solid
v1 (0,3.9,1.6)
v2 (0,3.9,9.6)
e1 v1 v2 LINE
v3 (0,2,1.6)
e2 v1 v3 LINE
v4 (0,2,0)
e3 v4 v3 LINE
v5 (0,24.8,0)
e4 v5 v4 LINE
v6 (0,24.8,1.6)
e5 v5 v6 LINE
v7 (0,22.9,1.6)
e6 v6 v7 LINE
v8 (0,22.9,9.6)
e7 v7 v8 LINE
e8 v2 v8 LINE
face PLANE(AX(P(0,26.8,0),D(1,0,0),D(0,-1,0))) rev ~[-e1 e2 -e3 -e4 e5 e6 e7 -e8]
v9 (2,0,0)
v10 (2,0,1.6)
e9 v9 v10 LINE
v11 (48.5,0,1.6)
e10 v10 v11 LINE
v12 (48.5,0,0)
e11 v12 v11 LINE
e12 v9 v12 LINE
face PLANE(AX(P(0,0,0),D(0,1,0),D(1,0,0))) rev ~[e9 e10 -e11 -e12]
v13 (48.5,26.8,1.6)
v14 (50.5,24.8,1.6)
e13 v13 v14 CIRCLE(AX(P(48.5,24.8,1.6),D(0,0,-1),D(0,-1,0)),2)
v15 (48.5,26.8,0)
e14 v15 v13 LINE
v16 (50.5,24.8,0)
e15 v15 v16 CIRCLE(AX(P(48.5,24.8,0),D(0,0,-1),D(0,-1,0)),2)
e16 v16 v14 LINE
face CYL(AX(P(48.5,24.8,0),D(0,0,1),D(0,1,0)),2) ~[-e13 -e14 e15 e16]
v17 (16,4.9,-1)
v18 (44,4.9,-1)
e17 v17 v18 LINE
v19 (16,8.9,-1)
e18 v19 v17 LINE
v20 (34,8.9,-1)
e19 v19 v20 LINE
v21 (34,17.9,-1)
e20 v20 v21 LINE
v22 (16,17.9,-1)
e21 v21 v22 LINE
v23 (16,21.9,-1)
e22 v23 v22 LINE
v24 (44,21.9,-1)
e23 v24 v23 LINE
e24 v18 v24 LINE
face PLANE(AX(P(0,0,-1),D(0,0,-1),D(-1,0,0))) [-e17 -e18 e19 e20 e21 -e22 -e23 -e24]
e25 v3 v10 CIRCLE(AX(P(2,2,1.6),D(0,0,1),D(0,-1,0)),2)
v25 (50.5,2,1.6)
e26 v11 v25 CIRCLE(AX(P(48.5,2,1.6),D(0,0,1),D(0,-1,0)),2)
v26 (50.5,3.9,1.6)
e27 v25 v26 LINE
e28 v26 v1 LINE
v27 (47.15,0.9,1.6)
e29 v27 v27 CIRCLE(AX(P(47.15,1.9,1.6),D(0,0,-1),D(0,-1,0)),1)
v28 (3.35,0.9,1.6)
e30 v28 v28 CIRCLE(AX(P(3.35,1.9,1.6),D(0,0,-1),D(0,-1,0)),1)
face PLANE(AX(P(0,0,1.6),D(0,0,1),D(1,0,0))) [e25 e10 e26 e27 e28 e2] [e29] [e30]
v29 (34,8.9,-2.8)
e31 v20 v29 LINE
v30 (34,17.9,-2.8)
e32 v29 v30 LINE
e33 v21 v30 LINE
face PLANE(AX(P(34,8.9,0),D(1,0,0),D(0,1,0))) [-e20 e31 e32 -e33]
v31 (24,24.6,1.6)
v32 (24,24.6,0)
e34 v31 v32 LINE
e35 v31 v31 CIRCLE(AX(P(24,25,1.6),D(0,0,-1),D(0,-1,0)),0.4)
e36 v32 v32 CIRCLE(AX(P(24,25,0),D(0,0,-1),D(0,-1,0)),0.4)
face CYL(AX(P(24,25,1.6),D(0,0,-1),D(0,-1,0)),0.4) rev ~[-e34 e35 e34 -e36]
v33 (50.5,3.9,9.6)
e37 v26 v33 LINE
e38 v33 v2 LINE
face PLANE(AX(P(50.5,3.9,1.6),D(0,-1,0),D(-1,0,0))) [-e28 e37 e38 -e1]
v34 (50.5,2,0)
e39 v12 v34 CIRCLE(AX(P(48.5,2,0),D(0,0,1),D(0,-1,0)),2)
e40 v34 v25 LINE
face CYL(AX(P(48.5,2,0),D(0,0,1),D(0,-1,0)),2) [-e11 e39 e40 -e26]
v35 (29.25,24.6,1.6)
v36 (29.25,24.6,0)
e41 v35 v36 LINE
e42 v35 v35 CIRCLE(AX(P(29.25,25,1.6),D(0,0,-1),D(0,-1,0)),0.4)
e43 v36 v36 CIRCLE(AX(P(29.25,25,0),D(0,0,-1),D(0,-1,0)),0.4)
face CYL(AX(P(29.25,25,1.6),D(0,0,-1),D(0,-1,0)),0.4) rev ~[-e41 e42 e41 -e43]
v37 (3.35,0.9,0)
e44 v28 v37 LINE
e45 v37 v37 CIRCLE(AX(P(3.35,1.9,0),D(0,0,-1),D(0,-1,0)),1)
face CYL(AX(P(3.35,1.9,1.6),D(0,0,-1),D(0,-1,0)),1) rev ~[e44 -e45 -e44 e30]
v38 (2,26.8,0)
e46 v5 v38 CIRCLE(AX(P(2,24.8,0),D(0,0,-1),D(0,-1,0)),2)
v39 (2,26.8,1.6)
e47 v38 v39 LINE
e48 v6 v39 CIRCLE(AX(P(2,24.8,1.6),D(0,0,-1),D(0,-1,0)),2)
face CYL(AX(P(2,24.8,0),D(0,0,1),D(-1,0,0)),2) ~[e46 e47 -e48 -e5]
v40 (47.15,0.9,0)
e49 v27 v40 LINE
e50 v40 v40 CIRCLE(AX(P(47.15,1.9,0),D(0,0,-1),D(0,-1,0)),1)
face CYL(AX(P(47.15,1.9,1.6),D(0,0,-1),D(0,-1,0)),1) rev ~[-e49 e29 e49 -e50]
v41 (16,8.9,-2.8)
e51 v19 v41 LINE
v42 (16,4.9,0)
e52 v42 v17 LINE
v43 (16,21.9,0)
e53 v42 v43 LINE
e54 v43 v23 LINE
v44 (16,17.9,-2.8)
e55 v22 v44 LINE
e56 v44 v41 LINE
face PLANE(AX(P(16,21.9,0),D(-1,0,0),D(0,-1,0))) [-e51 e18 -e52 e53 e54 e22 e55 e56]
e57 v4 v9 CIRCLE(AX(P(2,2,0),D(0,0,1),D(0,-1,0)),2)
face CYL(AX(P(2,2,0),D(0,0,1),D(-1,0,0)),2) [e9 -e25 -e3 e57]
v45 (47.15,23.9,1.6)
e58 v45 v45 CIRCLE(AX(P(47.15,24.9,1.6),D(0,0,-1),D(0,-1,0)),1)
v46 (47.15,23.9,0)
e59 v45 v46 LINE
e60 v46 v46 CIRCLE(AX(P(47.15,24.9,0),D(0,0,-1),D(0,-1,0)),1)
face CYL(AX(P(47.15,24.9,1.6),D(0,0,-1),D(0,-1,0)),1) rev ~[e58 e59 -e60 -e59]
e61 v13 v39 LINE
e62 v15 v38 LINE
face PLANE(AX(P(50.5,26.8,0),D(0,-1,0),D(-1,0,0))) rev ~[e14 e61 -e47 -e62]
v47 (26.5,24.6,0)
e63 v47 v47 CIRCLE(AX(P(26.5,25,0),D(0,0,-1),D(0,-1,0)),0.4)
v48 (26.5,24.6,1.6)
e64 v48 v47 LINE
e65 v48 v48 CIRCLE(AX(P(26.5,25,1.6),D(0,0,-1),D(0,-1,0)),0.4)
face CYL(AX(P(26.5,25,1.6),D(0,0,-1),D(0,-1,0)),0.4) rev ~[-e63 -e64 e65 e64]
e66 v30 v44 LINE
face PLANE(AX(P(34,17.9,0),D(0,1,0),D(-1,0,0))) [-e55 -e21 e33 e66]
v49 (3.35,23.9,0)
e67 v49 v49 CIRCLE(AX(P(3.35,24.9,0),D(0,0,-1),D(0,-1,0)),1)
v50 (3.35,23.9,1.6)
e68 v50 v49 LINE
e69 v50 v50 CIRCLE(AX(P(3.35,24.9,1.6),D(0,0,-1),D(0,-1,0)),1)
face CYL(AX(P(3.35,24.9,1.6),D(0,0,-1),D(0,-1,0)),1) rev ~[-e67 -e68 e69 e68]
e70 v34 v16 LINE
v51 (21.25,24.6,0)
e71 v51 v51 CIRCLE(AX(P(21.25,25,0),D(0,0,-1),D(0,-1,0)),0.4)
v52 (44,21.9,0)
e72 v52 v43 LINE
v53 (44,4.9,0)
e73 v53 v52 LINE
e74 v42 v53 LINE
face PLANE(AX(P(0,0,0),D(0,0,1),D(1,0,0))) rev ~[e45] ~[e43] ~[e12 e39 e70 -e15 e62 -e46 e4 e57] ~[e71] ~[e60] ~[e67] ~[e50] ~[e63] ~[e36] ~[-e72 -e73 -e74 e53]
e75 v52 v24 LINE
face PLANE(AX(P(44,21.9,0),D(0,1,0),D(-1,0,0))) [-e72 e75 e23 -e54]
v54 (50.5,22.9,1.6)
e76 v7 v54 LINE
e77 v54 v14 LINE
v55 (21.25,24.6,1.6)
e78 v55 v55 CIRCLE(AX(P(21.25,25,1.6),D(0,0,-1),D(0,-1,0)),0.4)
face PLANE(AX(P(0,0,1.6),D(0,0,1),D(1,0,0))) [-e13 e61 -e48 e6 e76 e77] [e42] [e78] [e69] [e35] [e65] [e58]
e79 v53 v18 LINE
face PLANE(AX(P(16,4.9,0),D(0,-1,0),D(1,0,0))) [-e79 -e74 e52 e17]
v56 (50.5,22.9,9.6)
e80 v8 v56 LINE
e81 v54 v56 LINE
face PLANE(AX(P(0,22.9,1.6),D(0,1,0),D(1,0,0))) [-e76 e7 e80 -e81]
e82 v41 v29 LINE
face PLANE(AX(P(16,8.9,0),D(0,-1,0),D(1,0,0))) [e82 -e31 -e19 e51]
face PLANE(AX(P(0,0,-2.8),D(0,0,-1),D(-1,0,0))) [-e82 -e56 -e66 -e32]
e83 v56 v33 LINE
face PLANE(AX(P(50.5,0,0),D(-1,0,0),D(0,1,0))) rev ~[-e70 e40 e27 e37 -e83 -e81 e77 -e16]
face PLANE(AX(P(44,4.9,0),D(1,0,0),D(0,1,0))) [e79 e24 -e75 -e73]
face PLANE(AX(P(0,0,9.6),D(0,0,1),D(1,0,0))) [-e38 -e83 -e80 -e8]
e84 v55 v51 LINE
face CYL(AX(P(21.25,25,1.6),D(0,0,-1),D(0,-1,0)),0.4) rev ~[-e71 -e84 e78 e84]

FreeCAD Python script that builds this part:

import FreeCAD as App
import Part
import Sketcher
from FreeCAD import Vector
Q = App.Units.Quantity


def edges_at(feature, points):
    """Names of the edges that pass closest to the given points."""
    edges = feature.Shape.Edges
    near = lambda p: min(range(len(edges)), key=lambda i: edges[i].distToShape(Part.Vertex(*p))[0])
    return sorted({f"Edge{near(p) + 1}" for p in points})

doc = App.newDocument("Part")
body = doc.addObject("PartDesign::Body", "Body")

sketch1 = body.newObject("Sketcher::SketchObject", "Sketch")
sketch1.AttachmentSupport = (doc.getObject("XY_Plane"), [""])
sketch1.MapMode = "FlatFace"
sketch1.addGeometry([
    Part.LineSegment(Vector(0, 27, 0), Vector(0, 0, 0)),
    Part.LineSegment(Vector(0, 0, 0), Vector(50, 0, 0)),
    Part.LineSegment(Vector(50, 0, 0), Vector(50, 27, 0)),
    Part.LineSegment(Vector(50, 27, 0), Vector(0, 27, 0)),
], False)
sketch1.addConstraint([
    Sketcher.Constraint("Coincident", 0, 2, 1, 1),
    Sketcher.Constraint("Coincident", 1, 2, 2, 1),
    Sketcher.Constraint("Coincident", 2, 2, 3, 1),
    Sketcher.Constraint("Coincident", 3, 2, 0, 1),
    Sketcher.Constraint("Vertical", 0),
    Sketcher.Constraint("Horizontal", 1),
    Sketcher.Constraint("Vertical", 2),
    Sketcher.Constraint("Horizontal", 3),
    Sketcher.Constraint("Coincident", 0, 2, -1, 1),
    Sketcher.Constraint("DistanceX", 1, 1, 1, 2, Q("50.5 mm")),
    Sketcher.Constraint("DistanceY", 0, 2, 0, 1, Q("26.8 mm")),
])
pad1 = body.newObject("PartDesign::Pad", "Pad")
pad1.Profile = sketch1
pad1.Length = 1.6

sketch2 = body.newObject("Sketcher::SketchObject", "Sketch001")
sketch2.AttachmentSupport = (doc.getObject("XY_Plane"), [""])
sketch2.MapMode = "FlatFace"
sketch2.AttachmentOffset = App.Placement(Vector(0, 0, 1.6), App.Rotation())
sketch2.addGeometry([
    Part.Circle(Vector(3.4, 24.9, 0), Vector(0, 0, 1), 1),
    Part.Circle(Vector(3.4, 1.9, 0), Vector(0, 0, 1), 1),
    Part.Circle(Vector(47.1, 24.9, 0), Vector(0, 0, 1), 1),
    Part.Circle(Vector(47.1, 1.9, 0), Vector(0, 0, 1), 1),
], False)
sketch2.addConstraint([
    Sketcher.Constraint("Equal", 0, 1),
    Sketcher.Constraint("Equal", 1, 2),
    Sketcher.Constraint("Equal", 2, 3),
    Sketcher.Constraint("Horizontal", 0, 3, 2, 3),
    Sketcher.Constraint("Horizontal", 1, 3, 3, 3),
    Sketcher.Constraint("Vertical", 0, 3, 1, 3),
    Sketcher.Constraint("Vertical", 2, 3, 3, 3),
    Sketcher.Constraint("Diameter", 0, Q("2 mm")),
    Sketcher.Constraint("DistanceY", 1, 3, 0, 3, Q("23 mm")),
    Sketcher.Constraint("DistanceY", -1, 1, 0, 3, Q("24.9 mm")),
    Sketcher.Constraint("DistanceX", 0, 3, 2, 3, Q("43.8 mm")),
    Sketcher.Constraint("DistanceX", -1, 1, 0, 3, Q("3.35 mm")),
])
doc.recompute()
hole = body.newObject("PartDesign::Hole", "Hole")
hole.Profile = sketch2
hole.ThreadType = "None"
hole.Diameter = 2
hole.DepthType = "ThroughAll"
doc.recompute()

fillet = body.newObject("PartDesign::Fillet", "Fillet")
fillet.Base = (hole, edges_at(hole, [
    (0, 26.8, 0.8),
    (50.5, 26.8, 0.8),
    (50.5, 0, 0.8),
    (0, 0, 0.8),
]))
fillet.Radius = 2

sketch3 = body.newObject("Sketcher::SketchObject", "Sketch002")
sketch3.AttachmentSupport = (doc.getObject("XY_Plane"), [""])
sketch3.MapMode = "FlatFace"
sketch3.AttachmentOffset = App.Placement(Vector(0, 0, 1.6), App.Rotation())
sketch3.addGeometry([
    Part.LineSegment(Vector(50, 23, 0), Vector(0, 23, 0)),
    Part.LineSegment(Vector(0, 23, 0), Vector(0, 4, 0)),
    Part.LineSegment(Vector(0, 4, 0), Vector(50, 4, 0)),
    Part.LineSegment(Vector(50, 4, 0), Vector(50, 23, 0)),
], False)
sketch3.addConstraint([
    Sketcher.Constraint("Coincident", 0, 2, 1, 1),
    Sketcher.Constraint("Coincident", 1, 2, 2, 1),
    Sketcher.Constraint("Coincident", 2, 2, 3, 1),
    Sketcher.Constraint("Coincident", 3, 2, 0, 1),
    Sketcher.Constraint("Horizontal", 0),
    Sketcher.Constraint("Vertical", 1),
    Sketcher.Constraint("Horizontal", 2),
    Sketcher.Constraint("Vertical", 3),
    Sketcher.Constraint("PointOnObject", 0, 2, -2),
    Sketcher.Constraint("DistanceY", 1, 2, 1, 1, Q("19 mm")),
    Sketcher.Constraint("DistanceX", 0, 2, 0, 1, Q("50.5 mm")),
    Sketcher.Constraint("DistanceY", -1, 1, 0, 2, Q("22.9 mm")),
])
pad2 = body.newObject("PartDesign::Pad", "Pad001")
pad2.Profile = sketch3
pad2.Length = 8

sketch4 = body.newObject("Sketcher::SketchObject", "Sketch003")
sketch4.AttachmentSupport = (doc.getObject("XY_Plane"), [""])
sketch4.MapMode = "FlatFace"
sketch4.addGeometry([
    Part.LineSegment(Vector(16, 18, 0), Vector(34, 18, 0)),
    Part.LineSegment(Vector(34, 18, 0), Vector(34, 9, 0)),
    Part.LineSegment(Vector(34, 9, 0), Vector(16, 9, 0)),
    Part.LineSegment(Vector(16, 9, 0), Vector(16, 18, 0)),
], False)
sketch4.addConstraint([
    Sketcher.Constraint("Coincident", 0, 2, 1, 1),
    Sketcher.Constraint("Coincident", 1, 2, 2, 1),
    Sketcher.Constraint("Coincident", 2, 2, 3, 1),
    Sketcher.Constraint("Coincident", 3, 2, 0, 1),
    Sketcher.Constraint("Horizontal", 0),
    Sketcher.Constraint("Vertical", 1),
    Sketcher.Constraint("Horizontal", 2),
    Sketcher.Constraint("Vertical", 3),
    Sketcher.Constraint("DistanceX", 0, 1, 0, 2, Q("18 mm")),
    Sketcher.Constraint("DistanceY", 1, 2, 1, 1, Q("9 mm")),
    Sketcher.Constraint("DistanceX", -1, 1, 2, 2, Q("16 mm")),
    Sketcher.Constraint("DistanceY", -1, 1, 0, 2, Q("17.9 mm")),
])
pad3 = body.newObject("PartDesign::Pad", "Pad002")
pad3.Profile = sketch4
pad3.Length = 2.8
pad3.Reversed = True

sketch5 = body.newObject("Sketcher::SketchObject", "Sketch004")
sketch5.AttachmentSupport = (doc.getObject("XY_Plane"), [""])
sketch5.MapMode = "FlatFace"
sketch5.addGeometry([
    Part.LineSegment(Vector(16, 22, 0), Vector(44, 22, 0)),
    Part.LineSegment(Vector(44, 22, 0), Vector(44, 5, 0)),
    Part.LineSegment(Vector(44, 5, 0), Vector(16, 5, 0)),
    Part.LineSegment(Vector(16, 5, 0), Vector(16, 22, 0)),
], False)
sketch5.addConstraint([
    Sketcher.Constraint("Coincident", 0, 2, 1, 1),
    Sketcher.Constraint("Coincident", 1, 2, 2, 1),
    Sketcher.Constraint("Coincident", 2, 2, 3, 1),
    Sketcher.Constraint("Coincident", 3, 2, 0, 1),
    Sketcher.Constraint("Horizontal", 0),
    Sketcher.Constraint("Vertical", 1),
    Sketcher.Constraint("Horizontal", 2),
    Sketcher.Constraint("Vertical", 3),
    Sketcher.Constraint("DistanceX", 0, 1, 0, 2, Q("28 mm")),
    Sketcher.Constraint("DistanceY", 1, 2, 1, 1, Q("17 mm")),
    Sketcher.Constraint("DistanceX", -1, 1, 0, 2, Q("44 mm")),
    Sketcher.Constraint("DistanceY", -1, 1, 0, 2, Q("21.9 mm")),
])
pad4 = body.newObject("PartDesign::Pad", "Pad003")
pad4.Profile = sketch5
pad4.Length = 1
pad4.Reversed = True

sketch6 = body.newObject("Sketcher::SketchObject", "Sketch005")
sketch6.AttachmentSupport = (doc.getObject("XY_Plane"), [""])
sketch6.MapMode = "FlatFace"
sketch6.AttachmentOffset = App.Placement(Vector(0, 0, 1.6), App.Rotation())
sketch6.addGeometry([
    Part.Circle(Vector(21.25, 25, 0), Vector(0, 0, 1), 0.4),
    Part.Circle(Vector(29.25, 25, 0), Vector(0, 0, 1), 0.4),
    Part.Circle(Vector(26.5, 25, 0), Vector(0, 0, 1), 0.4),
    Part.Circle(Vector(24, 25, 0), Vector(0, 0, 1), 0.4),
], False)
sketch6.addConstraint([
    Sketcher.Constraint("Equal", 0, 1),
    Sketcher.Constraint("Equal", 1, 2),
    Sketcher.Constraint("Equal", 2, 3),
    Sketcher.Constraint("Horizontal", 0, 3, 1, 3),
    Sketcher.Constraint("Horizontal", 1, 3, 2, 3),
    Sketcher.Constraint("Horizontal", 2, 3, 3, 3),
    Sketcher.Constraint("Diameter", 0, Q("0.8 mm")),
    Sketcher.Constraint("DistanceY", -1, 1, 0, 3, Q("25 mm")),
    Sketcher.Constraint("DistanceX", -1, 1, 3, 3, Q("24 mm")),
    Sketcher.Constraint("DistanceX", 0, 3, 1, 3, Q("8 mm")),
    Sketcher.Constraint("DistanceX", -1, 1, 2, 3, Q("26.5 mm")),
    Sketcher.Constraint("DistanceX", -1, 1, 0, 3, Q("21.25 mm")),
])
doc.recompute()
hole2 = body.newObject("PartDesign::Hole", "Hole001")
hole2.Profile = sketch6
hole2.ThreadType = "None"
hole2.Diameter = 0.8
hole2.DepthType = "ThroughAll"

doc.recompute()
